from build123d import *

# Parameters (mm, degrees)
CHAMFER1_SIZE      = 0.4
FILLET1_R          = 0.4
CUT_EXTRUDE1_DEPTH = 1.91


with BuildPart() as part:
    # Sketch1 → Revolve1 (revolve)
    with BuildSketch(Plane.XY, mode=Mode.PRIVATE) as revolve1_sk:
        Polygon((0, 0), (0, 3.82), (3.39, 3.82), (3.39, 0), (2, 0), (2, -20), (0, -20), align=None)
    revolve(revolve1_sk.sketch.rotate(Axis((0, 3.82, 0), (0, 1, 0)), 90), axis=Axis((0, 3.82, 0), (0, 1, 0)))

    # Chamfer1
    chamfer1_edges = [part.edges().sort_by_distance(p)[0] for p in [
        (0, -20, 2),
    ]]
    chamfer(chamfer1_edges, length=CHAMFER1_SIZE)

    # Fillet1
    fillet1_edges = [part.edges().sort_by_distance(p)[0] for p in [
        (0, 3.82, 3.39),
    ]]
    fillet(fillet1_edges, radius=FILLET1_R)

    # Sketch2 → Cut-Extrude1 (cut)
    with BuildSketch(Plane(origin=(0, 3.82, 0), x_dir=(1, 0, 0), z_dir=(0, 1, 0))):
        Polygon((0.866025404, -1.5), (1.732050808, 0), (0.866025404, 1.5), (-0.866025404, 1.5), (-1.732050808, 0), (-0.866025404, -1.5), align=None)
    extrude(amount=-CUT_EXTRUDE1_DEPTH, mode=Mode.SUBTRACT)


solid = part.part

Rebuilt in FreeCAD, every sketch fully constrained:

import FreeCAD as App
import Part
import Sketcher
from FreeCAD import Vector
Q = App.Units.Quantity


def edges_at(feature, points):
    """Names of the edges that pass closest to the given points."""
    edges = feature.Shape.Edges
    near = lambda p: min(range(len(edges)), key=lambda i: edges[i].distToShape(Part.Vertex(*p))[0])
    return sorted({f"Edge{near(p) + 1}" for p in points})

doc = App.newDocument("Part")
body = doc.addObject("PartDesign::Body", "Body")

# Sketch on XY plane
sketch1 = doc.addObject("Sketcher::SketchObject", "Sketch")
body.addObject(sketch1)
sketch1.AttachmentSupport = (doc.XY_Plane, [""])
sketch1.MapMode = "FlatFace"
sketch1.addGeometry([
    Part.LineSegment(Vector(0, 3.8, 0), Vector(0, -20, 0)),  # 0
    Part.LineSegment(Vector(0, -20, 0), Vector(2, -20, 0)),  # 1
    Part.LineSegment(Vector(2, -20, 0), Vector(2, 0, 0)),  # 2
    Part.LineSegment(Vector(2, 0, 0), Vector(3.4, 0, 0)),  # 3
    Part.LineSegment(Vector(3.4, 0, 0), Vector(3.4, 3.8, 0)),  # 4
    Part.LineSegment(Vector(3.4, 3.8, 0), Vector(0, 3.8, 0)),  # 5
], False)
sketch1.addConstraint([
    Sketcher.Constraint("Coincident", 0, 2, 1, 1),
    Sketcher.Constraint("Coincident", 1, 2, 2, 1),
    Sketcher.Constraint("Coincident", 2, 2, 3, 1),
    Sketcher.Constraint("Coincident", 3, 2, 4, 1),
    Sketcher.Constraint("Coincident", 4, 2, 5, 1),
    Sketcher.Constraint("Coincident", 5, 2, 0, 1),
    Sketcher.Constraint("Vertical", 0),
    Sketcher.Constraint("Horizontal", 1),
    Sketcher.Constraint("Vertical", 2),
    Sketcher.Constraint("Horizontal", 3),
    Sketcher.Constraint("Vertical", 4),
    Sketcher.Constraint("Horizontal", 5),
    Sketcher.Constraint("PointOnObject", 0, 2, -2),
    Sketcher.Constraint("PointOnObject", 2, 2, -1),
    Sketcher.Constraint("DistanceX", 1, 1, 1, 2, Q("2 mm")),
    Sketcher.Constraint("DistanceY", 2, 1, 2, 2, Q("20 mm")),
    Sketcher.Constraint("DistanceX", 3, 1, 3, 2, Q("1.39 mm")),
    Sketcher.Constraint("DistanceY", 0, 2, 0, 1, Q("23.82 mm")),
])
revolution = doc.addObject("PartDesign::Revolution", "Revolution")
body.addObject(revolution)
revolution.Profile = sketch1
revolution.ReferenceAxis = (sketch1, ["V_Axis"])
revolution.Angle = 360
doc.recompute()

chamfer = doc.addObject("PartDesign::Chamfer", "Chamfer")
body.addObject(chamfer)
chamfer.Base = (revolution, edges_at(revolution, [(0, -20, 2)]))
chamfer.Size = 0.4
doc.recompute()

fillet = doc.addObject("PartDesign::Fillet", "Fillet")
body.addObject(fillet)
fillet.Base = (chamfer, edges_at(chamfer, [(0, 3.82, 3.39)]))
fillet.Radius = 0.4

# Sketch on XZ plane
sketch2 = doc.addObject("Sketcher::SketchObject", "Sketch001")
body.addObject(sketch2)
sketch2.AttachmentSupport = (doc.XZ_Plane, [""])
sketch2.MapMode = "FlatFace"
sketch2.AttachmentOffset = App.Placement(Vector(0, 0, -3.82), App.Rotation())
sketch2.addGeometry([
    Part.LineSegment(Vector(0.9, 1.5, 0), Vector(1.7, 0, 0)),  # 0
    Part.LineSegment(Vector(1.7, 0, 0), Vector(0.9, -1.5, 0)),  # 1
    Part.LineSegment(Vector(0.9, -1.5, 0), Vector(-0.9, -1.5, 0)),  # 2
    Part.LineSegment(Vector(-0.9, -1.5, 0), Vector(-1.7, 0, 0)),  # 3
    Part.LineSegment(Vector(-1.7, 0, 0), Vector(-0.9, 1.5, 0)),  # 4
    Part.LineSegment(Vector(-0.9, 1.5, 0), Vector(0.9, 1.5, 0)),  # 5
], False)
sketch2.addConstraint([
    Sketcher.Constraint("Coincident", 0, 2, 1, 1),
    Sketcher.Constraint("Coincident", 1, 2, 2, 1),
    Sketcher.Constraint("Coincident", 2, 2, 3, 1),
    Sketcher.Constraint("Coincident", 3, 2, 4, 1),
    Sketcher.Constraint("Coincident", 4, 2, 5, 1),
    Sketcher.Constraint("Coincident", 5, 2, 0, 1),
    Sketcher.Constraint("Horizontal", 2),
    Sketcher.Constraint("Horizontal", 5),
    Sketcher.Constraint("Symmetric", 0, 2, 3, 2, -1, 1),
    Sketcher.Constraint("Symmetric", 1, 2, 4, 2, -1, 1),
    Sketcher.Constraint("PointOnObject", 0, 2, -1),
    Sketcher.Constraint("Parallel", 0, 3),
    Sketcher.Constraint("Vertical", 2, 2, 4, 2),
    Sketcher.Constraint("Angle", 0, Q("-60 deg")),
    Sketcher.Constraint("DistanceY", 2, 2, 4, 2, Q("3 mm")),
    Sketcher.Constraint("DistanceX", 2, 2, 2, 1, Q("1.732051 mm")),
])
pocket1 = doc.addObject("PartDesign::Pocket", "Pocket")
body.addObject(pocket1)
pocket1.Profile = sketch2
pocket1.Length = 1.91
pocket1.Reversed = True

doc.recompute()
